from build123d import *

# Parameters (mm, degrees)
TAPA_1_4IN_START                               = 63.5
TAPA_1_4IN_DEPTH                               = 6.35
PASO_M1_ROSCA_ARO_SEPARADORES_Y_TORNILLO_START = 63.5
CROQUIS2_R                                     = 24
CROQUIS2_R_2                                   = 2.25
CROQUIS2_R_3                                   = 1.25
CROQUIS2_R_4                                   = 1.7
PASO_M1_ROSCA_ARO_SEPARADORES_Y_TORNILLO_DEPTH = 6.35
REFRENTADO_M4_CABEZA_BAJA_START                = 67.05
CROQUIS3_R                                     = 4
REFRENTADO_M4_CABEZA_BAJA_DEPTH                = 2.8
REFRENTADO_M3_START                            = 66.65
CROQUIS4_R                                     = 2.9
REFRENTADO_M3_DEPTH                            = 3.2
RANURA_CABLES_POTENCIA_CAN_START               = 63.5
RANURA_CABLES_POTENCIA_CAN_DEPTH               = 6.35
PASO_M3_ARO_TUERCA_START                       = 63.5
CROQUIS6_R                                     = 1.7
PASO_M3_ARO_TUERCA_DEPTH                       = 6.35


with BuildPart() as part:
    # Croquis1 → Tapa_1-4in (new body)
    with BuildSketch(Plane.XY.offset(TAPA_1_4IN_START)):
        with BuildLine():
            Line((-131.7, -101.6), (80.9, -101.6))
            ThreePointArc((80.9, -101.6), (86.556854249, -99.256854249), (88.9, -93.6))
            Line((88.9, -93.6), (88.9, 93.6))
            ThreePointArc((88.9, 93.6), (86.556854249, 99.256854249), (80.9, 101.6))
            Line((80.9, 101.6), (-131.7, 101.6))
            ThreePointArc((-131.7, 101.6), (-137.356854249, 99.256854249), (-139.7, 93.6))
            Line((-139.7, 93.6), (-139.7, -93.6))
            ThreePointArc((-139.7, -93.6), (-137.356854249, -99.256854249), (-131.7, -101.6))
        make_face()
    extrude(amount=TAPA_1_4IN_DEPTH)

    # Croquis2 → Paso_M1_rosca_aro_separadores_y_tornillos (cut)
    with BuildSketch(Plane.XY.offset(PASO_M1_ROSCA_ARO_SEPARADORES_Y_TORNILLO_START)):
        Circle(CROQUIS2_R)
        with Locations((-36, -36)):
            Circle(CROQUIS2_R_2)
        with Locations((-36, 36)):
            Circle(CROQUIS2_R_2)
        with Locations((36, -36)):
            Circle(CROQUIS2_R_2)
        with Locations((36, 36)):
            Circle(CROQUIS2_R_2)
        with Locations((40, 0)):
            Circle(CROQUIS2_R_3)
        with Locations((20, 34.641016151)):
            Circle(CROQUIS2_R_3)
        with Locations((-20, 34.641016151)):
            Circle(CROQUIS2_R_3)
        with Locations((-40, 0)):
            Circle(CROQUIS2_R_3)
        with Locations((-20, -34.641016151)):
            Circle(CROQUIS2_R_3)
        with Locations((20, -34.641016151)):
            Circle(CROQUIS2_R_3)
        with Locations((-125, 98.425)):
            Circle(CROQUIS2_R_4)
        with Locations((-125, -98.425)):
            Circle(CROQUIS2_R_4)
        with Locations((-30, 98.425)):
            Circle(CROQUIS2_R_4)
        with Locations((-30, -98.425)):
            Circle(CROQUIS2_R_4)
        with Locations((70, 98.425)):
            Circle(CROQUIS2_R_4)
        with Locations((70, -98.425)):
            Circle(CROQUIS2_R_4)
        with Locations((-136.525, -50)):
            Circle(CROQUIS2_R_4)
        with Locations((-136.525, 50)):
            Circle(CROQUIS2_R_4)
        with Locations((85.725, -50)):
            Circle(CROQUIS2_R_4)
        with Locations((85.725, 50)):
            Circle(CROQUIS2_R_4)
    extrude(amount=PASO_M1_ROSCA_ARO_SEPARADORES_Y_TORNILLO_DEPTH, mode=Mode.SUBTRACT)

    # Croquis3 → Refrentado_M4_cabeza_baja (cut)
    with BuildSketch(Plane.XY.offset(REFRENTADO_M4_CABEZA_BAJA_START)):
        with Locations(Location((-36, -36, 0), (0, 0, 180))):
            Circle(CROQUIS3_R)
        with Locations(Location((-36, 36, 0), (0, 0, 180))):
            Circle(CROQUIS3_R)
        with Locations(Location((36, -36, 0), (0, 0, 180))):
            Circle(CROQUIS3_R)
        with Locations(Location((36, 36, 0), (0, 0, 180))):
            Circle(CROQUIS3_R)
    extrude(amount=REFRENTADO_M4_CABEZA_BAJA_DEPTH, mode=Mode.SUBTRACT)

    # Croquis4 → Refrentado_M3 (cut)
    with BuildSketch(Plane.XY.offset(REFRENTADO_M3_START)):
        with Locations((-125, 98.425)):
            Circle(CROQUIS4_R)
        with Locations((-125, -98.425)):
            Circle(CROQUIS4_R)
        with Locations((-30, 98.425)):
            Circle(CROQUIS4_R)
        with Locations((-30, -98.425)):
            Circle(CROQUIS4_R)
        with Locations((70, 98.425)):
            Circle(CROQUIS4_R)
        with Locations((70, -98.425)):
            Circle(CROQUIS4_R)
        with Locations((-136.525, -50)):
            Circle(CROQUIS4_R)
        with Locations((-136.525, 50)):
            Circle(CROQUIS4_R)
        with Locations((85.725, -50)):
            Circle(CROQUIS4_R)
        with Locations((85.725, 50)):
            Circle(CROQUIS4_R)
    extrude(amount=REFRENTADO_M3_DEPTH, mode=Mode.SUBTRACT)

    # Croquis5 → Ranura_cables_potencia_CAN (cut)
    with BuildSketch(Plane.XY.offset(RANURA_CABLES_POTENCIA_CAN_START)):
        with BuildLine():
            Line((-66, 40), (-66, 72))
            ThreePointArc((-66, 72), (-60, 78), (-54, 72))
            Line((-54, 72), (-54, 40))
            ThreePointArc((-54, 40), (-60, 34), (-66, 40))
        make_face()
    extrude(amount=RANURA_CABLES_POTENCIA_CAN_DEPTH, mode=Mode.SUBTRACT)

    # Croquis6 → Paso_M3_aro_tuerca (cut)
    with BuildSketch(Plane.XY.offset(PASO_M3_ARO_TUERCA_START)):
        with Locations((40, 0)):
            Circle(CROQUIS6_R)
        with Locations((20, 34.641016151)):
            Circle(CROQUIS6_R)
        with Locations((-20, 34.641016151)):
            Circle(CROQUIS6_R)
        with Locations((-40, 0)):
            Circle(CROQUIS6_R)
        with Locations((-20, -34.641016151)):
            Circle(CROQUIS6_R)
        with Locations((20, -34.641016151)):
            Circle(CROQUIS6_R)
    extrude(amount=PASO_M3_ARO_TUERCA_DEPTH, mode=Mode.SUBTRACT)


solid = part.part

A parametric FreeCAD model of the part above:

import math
import FreeCAD as App
import Part
import Sketcher
from FreeCAD import Vector

doc = App.newDocument("Part")
body = doc.addObject("PartDesign::Body", "Body")

sketch1 = body.newObject("Sketcher::SketchObject", "Sketch")
sketch1.AttachmentSupport = (doc.getObject("XY_Plane"), [""])
sketch1.MapMode = "FlatFace"
sketch1.AttachmentOffset = App.Placement(Vector(0, 0, 63.5), App.Rotation())
sketch1.addGeometry(Part.LineSegment(Vector(-131.7, -101.6, 0), Vector(80.9, -101.6, 0)), False)
sketch1.addGeometry(Part.ArcOfCircle(Part.Circle(Vector(80.9, -93.6, 0), Vector(0, 0, 1), 8), math.radians(-90), math.radians(0)), False)
sketch1.addGeometry(Part.LineSegment(Vector(88.9, -93.6, 0), Vector(88.9, 93.6, 0)), False)
sketch1.addGeometry(Part.ArcOfCircle(Part.Circle(Vector(80.9, 93.6, 0), Vector(0, 0, 1), 8), math.radians(0), math.radians(90)), False)
sketch1.addGeometry(Part.LineSegment(Vector(80.9, 101.6, 0), Vector(-131.7, 101.6, 0)), False)
sketch1.addGeometry(Part.ArcOfCircle(Part.Circle(Vector(-131.7, 93.6, 0), Vector(0, 0, 1), 8), math.radians(90), math.radians(180)), False)
sketch1.addGeometry(Part.LineSegment(Vector(-139.7, 93.6, 0), Vector(-139.7, -93.6, 0)), False)
sketch1.addGeometry(Part.ArcOfCircle(Part.Circle(Vector(-131.7, -93.6, 0), Vector(0, 0, 1), 8), math.radians(-180), math.radians(-90)), False)
sketch1.addConstraint(Sketcher.Constraint("Tangent", 0, 2, 1, 1))
sketch1.addConstraint(Sketcher.Constraint("Tangent", 1, 2, 2, 1))
sketch1.addConstraint(Sketcher.Constraint("Tangent", 2, 2, 3, 1))
sketch1.addConstraint(Sketcher.Constraint("Tangent", 3, 2, 4, 1))
sketch1.addConstraint(Sketcher.Constraint("Tangent", 4, 2, 5, 1))
sketch1.addConstraint(Sketcher.Constraint("Tangent", 5, 2, 6, 1))
sketch1.addConstraint(Sketcher.Constraint("Tangent", 6, 2, 7, 1))
sketch1.addConstraint(Sketcher.Constraint("Tangent", 7, 2, 0, 1))
sketch1.addConstraint(Sketcher.Constraint("Horizontal", 0))
sketch1.addConstraint(Sketcher.Constraint("Vertical", 2))
sketch1.addConstraint(Sketcher.Constraint("Horizontal", 4))
sketch1.addConstraint(Sketcher.Constraint("Vertical", 6))
sketch1.addConstraint(Sketcher.Constraint("Equal", 1, 3))
sketch1.addConstraint(Sketcher.Constraint("Equal", 3, 5))
sketch1.addConstraint(Sketcher.Constraint("Equal", 5, 7))
sketch1.addConstraint(Sketcher.Constraint("Radius", 1, 8.0))
sketch1.addConstraint(Sketcher.Constraint("DistanceX", 0, 1, 0, 2, 212.6))
sketch1.addConstraint(Sketcher.Constraint("DistanceY", 2, 1, 2, 2, 187.2))
sketch1.addConstraint(Sketcher.Constraint("DistanceX", -1, 1, 1, 3, 80.9))
sketch1.addConstraint(Sketcher.Constraint("DistanceY", 1, 3, -1, 1, 93.6))
pad1 = body.newObject("PartDesign::Pad", "Pad")
pad1.Profile = sketch1
pad1.Length = 6.35

sketch2 = body.newObject("Sketcher::SketchObject", "Sketch001")
sketch2.AttachmentSupport = (doc.getObject("XY_Plane"), [""])
sketch2.MapMode = "FlatFace"
sketch2.AttachmentOffset = App.Placement(Vector(0, 0, 63.5), App.Rotation())
sketch2.addGeometry(Part.Circle(Vector(0, 0, 0), Vector(0, 0, 1), 24), False)
sketch2.addGeometry(Part.Circle(Vector(-36, -36, 0), Vector(0, 0, 1), 2.25), False)
sketch2.addGeometry(Part.Circle(Vector(-36, 36, 0), Vector(0, 0, 1), 2.25), False)
sketch2.addGeometry(Part.Circle(Vector(36, -36, 0), Vector(0, 0, 1), 2.25), False)
sketch2.addGeometry(Part.Circle(Vector(36, 36, 0), Vector(0, 0, 1), 2.25), False)
sketch2.addGeometry(Part.Circle(Vector(40, 0, 0), Vector(0, 0, 1), 1.25), False)
sketch2.addGeometry(Part.Circle(Vector(20, 34.641016, 0), Vector(0, 0, 1), 1.25), False)
sketch2.addGeometry(Part.Circle(Vector(-20, 34.641016, 0), Vector(0, 0, 1), 1.25), False)
sketch2.addGeometry(Part.Circle(Vector(-40, 0, 0), Vector(0, 0, 1), 1.25), False)
sketch2.addGeometry(Part.Circle(Vector(-20, -34.641016, 0), Vector(0, 0, 1), 1.25), False)
sketch2.addGeometry(Part.Circle(Vector(20, -34.641016, 0), Vector(0, 0, 1), 1.25), False)
sketch2.addGeometry(Part.Circle(Vector(-125, 98.425, 0), Vector(0, 0, 1), 1.7), False)
sketch2.addGeometry(Part.Circle(Vector(-125, -98.425, 0), Vector(0, 0, 1), 1.7), False)
sketch2.addGeometry(Part.Circle(Vector(-30, 98.425, 0), Vector(0, 0, 1), 1.7), False)
sketch2.addGeometry(Part.Circle(Vector(-30, -98.425, 0), Vector(0, 0, 1), 1.7), False)
sketch2.addGeometry(Part.Circle(Vector(70, 98.425, 0), Vector(0, 0, 1), 1.7), False)
sketch2.addGeometry(Part.Circle(Vector(70, -98.425, 0), Vector(0, 0, 1), 1.7), False)
sketch2.addGeometry(Part.Circle(Vector(-136.525, -50, 0), Vector(0, 0, 1), 1.7), False)
sketch2.addGeometry(Part.Circle(Vector(-136.525, 50, 0), Vector(0, 0, 1), 1.7), False)
sketch2.addGeometry(Part.Circle(Vector(85.725, -50, 0), Vector(0, 0, 1), 1.7), False)
sketch2.addGeometry(Part.Circle(Vector(85.725, 50, 0), Vector(0, 0, 1), 1.7), False)
sketch2.addConstraint(Sketcher.Constraint("Coincident", 0, 3, -1, 1))
sketch2.addConstraint(Sketcher.Constraint("Equal", 1, 2))
sketch2.addConstraint(Sketcher.Constraint("Equal", 2, 3))
sketch2.addConstraint(Sketcher.Constraint("Equal", 3, 4))
sketch2.addConstraint(Sketcher.Constraint("Equal", 5, 6))
sketch2.addConstraint(Sketcher.Constraint("Equal", 6, 7))
sketch2.addConstraint(Sketcher.Constraint("Equal", 7, 8))
sketch2.addConstraint(Sketcher.Constraint("Equal", 8, 9))
sketch2.addConstraint(Sketcher.Constraint("Equal", 9, 10))
sketch2.addConstraint(Sketcher.Constraint("Equal", 11, 12))
sketch2.addConstraint(Sketcher.Constraint("Equal", 12, 13))
sketch2.addConstraint(Sketcher.Constraint("Equal", 13, 14))
sketch2.addConstraint(Sketcher.Constraint("Equal", 14, 15))
sketch2.addConstraint(Sketcher.Constraint("Equal", 15, 16))
sketch2.addConstraint(Sketcher.Constraint("Equal", 16, 17))
sketch2.addConstraint(Sketcher.Constraint("Equal", 17, 18))
sketch2.addConstraint(Sketcher.Constraint("Equal", 18, 19))
sketch2.addConstraint(Sketcher.Constraint("Equal", 19, 20))
sketch2.addConstraint(Sketcher.Constraint("Symmetric", 2, 3, 3, 3, -1, 1))
sketch2.addConstraint(Sketcher.Constraint("Symmetric", 1, 3, 4, 3, -1, 1))
sketch2.addConstraint(Sketcher.Constraint("Symmetric", 5, 3, 8, 3, -1, 1))
sketch2.addConstraint(Sketcher.Constraint("Symmetric", 6, 3, 9, 3, -1, 1))
sketch2.addConstraint(Sketcher.Constraint("Symmetric", 7, 3, 10, 3, -1, 1))
sketch2.addConstraint(Sketcher.Constraint("Symmetric", 1, 3, 3, 3, -2))
sketch2.addConstraint(Sketcher.Constraint("Symmetric", 6, 3, 7, 3, -2))
sketch2.addConstraint(Sketcher.Constraint("Symmetric", 11, 3, 12, 3, -1))
sketch2.addConstraint(Sketcher.Constraint("Symmetric", 13, 3, 14, 3, -1))
sketch2.addConstraint(Sketcher.Constraint("Symmetric", 15, 3, 16, 3, -1))
sketch2.addConstraint(Sketcher.Constraint("Symmetric", 17, 3, 18, 3, -1))
sketch2.addConstraint(Sketcher.Constraint("Symmetric", 19, 3, 20, 3, -1))
sketch2.addConstraint(Sketcher.Constraint("PointOnObject", 5, 3, -1))
sketch2.addConstraint(Sketcher.Constraint("Horizontal", 11, 3, 13, 3))
sketch2.addConstraint(Sketcher.Constraint("Horizontal", 13, 3, 15, 3))
sketch2.addConstraint(Sketcher.Constraint("Horizontal", 17, 3, 19, 3))
sketch2.addConstraint(Sketcher.Constraint("Diameter", 0, 48.0))
sketch2.addConstraint(Sketcher.Constraint("Diameter", 1, 4.5))
sketch2.addConstraint(Sketcher.Constraint("Diameter", 5, 2.5))
sketch2.addConstraint(Sketcher.Constraint("Diameter", 11, 3.4))
sketch2.addConstraint(Sketcher.Constraint("DistanceX", 1, 3, -1, 1, 36.0))
sketch2.addConstraint(Sketcher.Constraint("DistanceY", 1, 3, -1, 1, 36.0))
sketch2.addConstraint(Sketcher.Constraint("DistanceX", -1, 1, 5, 3, 40.0))
sketch2.addConstraint(Sketcher.Constraint("DistanceX", -1, 1, 6, 3, 20.0))
sketch2.addConstraint(Sketcher.Constraint("DistanceX", 11, 3, -1, 1, 125.0))
sketch2.addConstraint(Sketcher.Constraint("DistanceX", 13, 3, -1, 1, 30.0))
sketch2.addConstraint(Sketcher.Constraint("DistanceX", -1, 1, 15, 3, 70.0))
sketch2.addConstraint(Sketcher.Constraint("DistanceY", 17, 3, -1, 1, 50.0))
sketch2.addConstraint(Sketcher.Constraint("DistanceY", -1, 1, 11, 3, 98.425))
sketch2.addConstraint(Sketcher.Constraint("DistanceX", 17, 3, -1, 1, 136.525))
sketch2.addConstraint(Sketcher.Constraint("DistanceX", -1, 1, 19, 3, 85.725))
sketch2.addConstraint(Sketcher.Constraint("DistanceY", -1, 1, 6, 3, 34.641016))
pocket1 = body.newObject("PartDesign::Pocket", "Pocket")
pocket1.Profile = sketch2
pocket1.Length = 6.35
pocket1.Reversed = True

sketch3 = body.newObject("Sketcher::SketchObject", "Sketch002")
sketch3.AttachmentSupport = (doc.getObject("XY_Plane"), [""])
sketch3.MapMode = "FlatFace"
sketch3.AttachmentOffset = App.Placement(Vector(0, 0, 67.05), App.Rotation())
sketch3.addGeometry(Part.Circle(Vector(-36, -36, 0), Vector(0, 0, 1), 4), False)
sketch3.addGeometry(Part.Circle(Vector(-36, 36, 0), Vector(0, 0, 1), 4), False)
sketch3.addGeometry(Part.Circle(Vector(36, -36, 0), Vector(0, 0, 1), 4), False)
sketch3.addGeometry(Part.Circle(Vector(36, 36, 0), Vector(0, 0, 1), 4), False)
sketch3.addConstraint(Sketcher.Constraint("Equal", 0, 1))
sketch3.addConstraint(Sketcher.Constraint("Equal", 1, 2))
sketch3.addConstraint(Sketcher.Constraint("Equal", 2, 3))
sketch3.addConstraint(Sketcher.Constraint("Symmetric", 1, 3, 2, 3, -1, 1))
sketch3.addConstraint(Sketcher.Constraint("Symmetric", 0, 3, 3, 3, -1, 1))
sketch3.addConstraint(Sketcher.Constraint("Symmetric", 0, 3, 2, 3, -2))
sketch3.addConstraint(Sketcher.Constraint("Diameter", 0, 8.0))
sketch3.addConstraint(Sketcher.Constraint("DistanceX", 0, 3, -1, 1, 36.0))
sketch3.addConstraint(Sketcher.Constraint("DistanceY", 0, 3, -1, 1, 36.0))
pocket2 = body.newObject("PartDesign::Pocket", "Pocket001")
pocket2.Profile = sketch3
pocket2.Length = 2.8
pocket2.Reversed = True

sketch4 = body.newObject("Sketcher::SketchObject", "Sketch003")
sketch4.AttachmentSupport = (doc.getObject("XY_Plane"), [""])
sketch4.MapMode = "FlatFace"
sketch4.AttachmentOffset = App.Placement(Vector(0, 0, 66.65), App.Rotation())
sketch4.addGeometry(Part.Circle(Vector(-125, 98.425, 0), Vector(0, 0, 1), 2.9), False)
sketch4.addGeometry(Part.Circle(Vector(-125, -98.425, 0), Vector(0, 0, 1), 2.9), False)
sketch4.addGeometry(Part.Circle(Vector(-30, 98.425, 0), Vector(0, 0, 1), 2.9), False)
sketch4.addGeometry(Part.Circle(Vector(-30, -98.425, 0), Vector(0, 0, 1), 2.9), False)
sketch4.addGeometry(Part.Circle(Vector(70, 98.425, 0), Vector(0, 0, 1), 2.9), False)
sketch4.addGeometry(Part.Circle(Vector(70, -98.425, 0), Vector(0, 0, 1), 2.9), False)
sketch4.addGeometry(Part.Circle(Vector(-136.525, -50, 0), Vector(0, 0, 1), 2.9), False)
sketch4.addGeometry(Part.Circle(Vector(-136.525, 50, 0), Vector(0, 0, 1), 2.9), False)
sketch4.addGeometry(Part.Circle(Vector(85.725, -50, 0), Vector(0, 0, 1), 2.9), False)
sketch4.addGeometry(Part.Circle(Vector(85.725, 50, 0), Vector(0, 0, 1), 2.9), False)
sketch4.addConstraint(Sketcher.Constraint("Equal", 0, 1))
sketch4.addConstraint(Sketcher.Constraint("Equal", 1, 2))
sketch4.addConstraint(Sketcher.Constraint("Equal", 2, 3))
sketch4.addConstraint(Sketcher.Constraint("Equal", 3, 4))
sketch4.addConstraint(Sketcher.Constraint("Equal", 4, 5))
sketch4.addConstraint(Sketcher.Constraint("Equal", 5, 6))
sketch4.addConstraint(Sketcher.Constraint("Equal", 6, 7))
sketch4.addConstraint(Sketcher.Constraint("Equal", 7, 8))
sketch4.addConstraint(Sketcher.Constraint("Equal", 8, 9))
sketch4.addConstraint(Sketcher.Constraint("Symmetric", 0, 3, 1, 3, -1))
sketch4.addConstraint(Sketcher.Constraint("Symmetric", 2, 3, 3, 3, -1))
sketch4.addConstraint(Sketcher.Constraint("Symmetric", 4, 3, 5, 3, -1))
sketch4.addConstraint(Sketcher.Constraint("Symmetric", 6, 3, 7, 3, -1))
sketch4.addConstraint(Sketcher.Constraint("Symmetric", 8, 3, 9, 3, -1))
sketch4.addConstraint(Sketcher.Constraint("Horizontal", 0, 3, 2, 3))
sketch4.addConstraint(Sketcher.Constraint("Horizontal", 2, 3, 4, 3))
sketch4.addConstraint(Sketcher.Constraint("Horizontal", 6, 3, 8, 3))
sketch4.addConstraint(Sketcher.Constraint("Diameter", 0, 5.8))
sketch4.addConstraint(Sketcher.Constraint("DistanceX", 0, 3, -1, 1, 125.0))
sketch4.addConstraint(Sketcher.Constraint("DistanceX", 2, 3, -1, 1, 30.0))
sketch4.addConstraint(Sketcher.Constraint("DistanceX", -1, 1, 4, 3, 70.0))
sketch4.addConstraint(Sketcher.Constraint("DistanceY", 6, 3, -1, 1, 50.0))
sketch4.addConstraint(Sketcher.Constraint("DistanceY", 1, 3, 0, 3, 196.85))
sketch4.addConstraint(Sketcher.Constraint("DistanceX", 6, 3, -1, 1, 136.525))
sketch4.addConstraint(Sketcher.Constraint("DistanceX", -1, 1, 8, 3, 85.725))
pocket3 = body.newObject("PartDesign::Pocket", "Pocket002")
pocket3.Profile = sketch4
pocket3.Length = 3.2
pocket3.Reversed = True

sketch5 = body.newObject("Sketcher::SketchObject", "Sketch004")
sketch5.AttachmentSupport = (doc.getObject("XY_Plane"), [""])
sketch5.MapMode = "FlatFace"
sketch5.AttachmentOffset = App.Placement(Vector(0, 0, 63.5), App.Rotation())
sketch5.addGeometry(Part.LineSegment(Vector(-66, 72, 0), Vector(-66, 40, 0)), False)
sketch5.addGeometry(Part.ArcOfCircle(Part.Circle(Vector(-60, 40, 0), Vector(0, 0, 1), 6), math.radians(180), math.radians(360)), False)
sketch5.addGeometry(Part.LineSegment(Vector(-54, 40, 0), Vector(-54, 72, 0)), False)
sketch5.addGeometry(Part.ArcOfCircle(Part.Circle(Vector(-60, 72, 0), Vector(0, 0, 1), 6), math.radians(0), math.radians(180)), False)
sketch5.addConstraint(Sketcher.Constraint("Tangent", 0, 2, 1, 1))
sketch5.addConstraint(Sketcher.Constraint("Tangent", 1, 2, 2, 1))
sketch5.addConstraint(Sketcher.Constraint("Tangent", 2, 2, 3, 1))
sketch5.addConstraint(Sketcher.Constraint("Tangent", 3, 2, 0, 1))
sketch5.addConstraint(Sketcher.Constraint("Vertical", 0))
sketch5.addConstraint(Sketcher.Constraint("Vertical", 2))
sketch5.addConstraint(Sketcher.Constraint("Radius", 1, 6.0))
sketch5.addConstraint(Sketcher.Constraint("DistanceY", 0, 2, 0, 1, 32.0))
sketch5.addConstraint(Sketcher.Constraint("DistanceX", 1, 3, -1, 1, 60.0))
sketch5.addConstraint(Sketcher.Constraint("DistanceY", -1, 1, 1, 3, 40.0))
pocket4 = body.newObject("PartDesign::Pocket", "Pocket003")
pocket4.Profile = sketch5
pocket4.Length = 6.35
pocket4.Reversed = True

sketch6 = body.newObject("Sketcher::SketchObject", "Sketch005")
sketch6.AttachmentSupport = (doc.getObject("XY_Plane"), [""])
sketch6.MapMode = "FlatFace"
sketch6.AttachmentOffset = App.Placement(Vector(0, 0, 63.5), App.Rotation())
sketch6.addGeometry(Part.Circle(Vector(40, 0, 0), Vector(0, 0, 1), 1.7), False)
sketch6.addGeometry(Part.Circle(Vector(20, 34.641016, 0), Vector(0, 0, 1), 1.7), False)
sketch6.addGeometry(Part.Circle(Vector(-20, 34.641016, 0), Vector(0, 0, 1), 1.7), False)
sketch6.addGeometry(Part.Circle(Vector(-40, 0, 0), Vector(0, 0, 1), 1.7), False)
sketch6.addGeometry(Part.Circle(Vector(-20, -34.641016, 0), Vector(0, 0, 1), 1.7), False)
sketch6.addGeometry(Part.Circle(Vector(20, -34.641016, 0), Vector(0, 0, 1), 1.7), False)
sketch6.addConstraint(Sketcher.Constraint("Equal", 0, 1))
sketch6.addConstraint(Sketcher.Constraint("Equal", 1, 2))
sketch6.addConstraint(Sketcher.Constraint("Equal", 2, 3))
sketch6.addConstraint(Sketcher.Constraint("Equal", 3, 4))
sketch6.addConstraint(Sketcher.Constraint("Equal", 4, 5))
sketch6.addConstraint(Sketcher.Constraint("Symmetric", 0, 3, 3, 3, -1, 1))
sketch6.addConstraint(Sketcher.Constraint("Symmetric", 1, 3, 4, 3, -1, 1))
sketch6.addConstraint(Sketcher.Constraint("Symmetric", 2, 3, 5, 3, -1, 1))
sketch6.addConstraint(Sketcher.Constraint("Symmetric", 1, 3, 2, 3, -2))
sketch6.addConstraint(Sketcher.Constraint("PointOnObject", 0, 3, -1))
sketch6.addConstraint(Sketcher.Constraint("Diameter", 0, 3.4))
sketch6.addConstraint(Sketcher.Constraint("DistanceX", -1, 1, 0, 3, 40.0))
sketch6.addConstraint(Sketcher.Constraint("DistanceX", -1, 1, 1, 3, 20.0))
sketch6.addConstraint(Sketcher.Constraint("DistanceY", -1, 1, 1, 3, 34.641016))
pocket5 = body.newObject("PartDesign::Pocket", "Pocket004")
pocket5.Profile = sketch6
pocket5.Length = 6.35
pocket5.Reversed = True

doc.recompute()
